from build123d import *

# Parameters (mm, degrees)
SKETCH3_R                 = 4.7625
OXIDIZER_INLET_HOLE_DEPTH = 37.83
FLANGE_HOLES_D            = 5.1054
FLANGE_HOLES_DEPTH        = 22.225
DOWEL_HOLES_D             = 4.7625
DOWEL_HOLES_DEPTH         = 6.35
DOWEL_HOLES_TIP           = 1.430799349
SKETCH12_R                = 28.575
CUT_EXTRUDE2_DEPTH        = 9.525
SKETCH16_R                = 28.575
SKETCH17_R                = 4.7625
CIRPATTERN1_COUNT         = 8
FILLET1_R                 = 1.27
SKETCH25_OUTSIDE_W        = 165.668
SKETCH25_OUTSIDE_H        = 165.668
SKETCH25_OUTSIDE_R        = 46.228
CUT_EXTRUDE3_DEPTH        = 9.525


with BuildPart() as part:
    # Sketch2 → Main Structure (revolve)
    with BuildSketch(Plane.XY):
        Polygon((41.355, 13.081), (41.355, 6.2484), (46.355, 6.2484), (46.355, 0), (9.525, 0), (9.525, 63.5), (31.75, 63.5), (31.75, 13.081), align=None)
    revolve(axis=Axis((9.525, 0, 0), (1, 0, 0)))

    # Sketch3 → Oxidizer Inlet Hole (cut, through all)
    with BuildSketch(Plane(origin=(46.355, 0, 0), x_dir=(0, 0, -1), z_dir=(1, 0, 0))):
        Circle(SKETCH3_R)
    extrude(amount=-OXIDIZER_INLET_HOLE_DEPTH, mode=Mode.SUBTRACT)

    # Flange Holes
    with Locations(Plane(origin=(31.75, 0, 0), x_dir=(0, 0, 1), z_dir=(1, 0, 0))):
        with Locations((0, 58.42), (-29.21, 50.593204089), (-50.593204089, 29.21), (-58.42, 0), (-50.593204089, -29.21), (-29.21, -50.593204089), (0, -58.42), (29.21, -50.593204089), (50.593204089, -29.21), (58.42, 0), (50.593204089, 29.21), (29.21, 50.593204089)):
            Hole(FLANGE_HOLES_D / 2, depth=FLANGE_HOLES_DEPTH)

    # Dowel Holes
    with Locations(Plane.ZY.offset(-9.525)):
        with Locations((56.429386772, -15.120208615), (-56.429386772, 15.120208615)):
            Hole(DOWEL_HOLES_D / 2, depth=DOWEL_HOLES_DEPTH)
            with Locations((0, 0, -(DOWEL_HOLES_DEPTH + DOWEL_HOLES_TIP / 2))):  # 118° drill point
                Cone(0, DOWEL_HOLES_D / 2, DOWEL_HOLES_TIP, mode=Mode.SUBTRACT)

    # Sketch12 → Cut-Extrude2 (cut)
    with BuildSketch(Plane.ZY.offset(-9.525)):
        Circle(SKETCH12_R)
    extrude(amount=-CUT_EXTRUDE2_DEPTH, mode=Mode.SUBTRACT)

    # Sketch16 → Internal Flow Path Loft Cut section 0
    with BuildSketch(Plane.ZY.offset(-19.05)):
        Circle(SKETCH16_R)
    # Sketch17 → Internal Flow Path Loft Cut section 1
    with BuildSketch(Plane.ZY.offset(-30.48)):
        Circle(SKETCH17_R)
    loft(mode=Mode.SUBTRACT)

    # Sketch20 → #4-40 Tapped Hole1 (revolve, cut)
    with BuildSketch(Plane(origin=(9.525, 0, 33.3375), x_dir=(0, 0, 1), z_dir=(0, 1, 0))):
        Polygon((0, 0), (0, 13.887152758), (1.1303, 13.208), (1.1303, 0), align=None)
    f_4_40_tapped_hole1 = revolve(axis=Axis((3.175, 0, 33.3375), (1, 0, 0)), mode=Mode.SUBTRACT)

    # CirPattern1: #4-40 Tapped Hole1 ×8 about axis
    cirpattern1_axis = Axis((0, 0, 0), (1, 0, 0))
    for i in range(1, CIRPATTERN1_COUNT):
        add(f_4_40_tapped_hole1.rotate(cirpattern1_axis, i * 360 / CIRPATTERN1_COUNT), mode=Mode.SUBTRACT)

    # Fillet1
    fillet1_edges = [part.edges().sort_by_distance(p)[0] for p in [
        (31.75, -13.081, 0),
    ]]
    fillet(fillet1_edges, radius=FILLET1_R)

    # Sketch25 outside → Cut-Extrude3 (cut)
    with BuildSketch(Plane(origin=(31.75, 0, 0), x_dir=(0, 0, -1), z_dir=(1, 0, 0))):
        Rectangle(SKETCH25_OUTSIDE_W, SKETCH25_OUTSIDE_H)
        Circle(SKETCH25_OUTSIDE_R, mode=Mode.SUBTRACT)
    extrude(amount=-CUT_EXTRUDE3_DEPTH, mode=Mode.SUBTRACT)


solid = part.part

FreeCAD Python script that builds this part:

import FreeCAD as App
import Part
import Sketcher
from FreeCAD import Vector
Q = App.Units.Quantity


def edges_at(feature, points):
    """Names of the edges that pass closest to the given points."""
    edges = feature.Shape.Edges
    near = lambda p: min(range(len(edges)), key=lambda i: edges[i].distToShape(Part.Vertex(*p))[0])
    return sorted({f"Edge{near(p) + 1}" for p in points})

doc = App.newDocument("Part")
params = doc.addObject("Spreadsheet::Sheet", "Params")
for row, (alias, value) in enumerate([
    ("sketch1_height", "2.5 in"),
    ("sketch1_width", "1.45 in"),
    ("sketch1_width2", "0.875 in"),
    ("sketch1_height2", "0.269 in"),
    ("sketch1_height3", "1.985 in"),
    ("revolution_angle", "360 deg"),
    ("sketch2_diameter", "0.375 in"),
    ("sketch3_diameter", "0.201 in"),
    ("hole_diameter", "0.201 in"),
    ("hole_depth", "0.875 in"),
    ("sketch4_diameter", "0.1875 in"),
    ("hole2_diameter", "0.1875 in"),
    ("hole2_depth", "0.25 in"),
    ("sketch5_diameter", "2.25 in"),
    ("pocket2_length", "0.375 in"),
    ("sketch6_diameter", "2.25 in"),
    ("sketch7_diameter", "0.375 in"),
    ("sketch8_width", "0.52 in"),
    ("groove_angle", "360 deg"),
    ("fillet_radius", "0.05 in"),
    ("sketch9_diameter", "3.64 in"),
    ("pocket3_length", "0.375 in"),
], start=1):
    params.set(f"A{row}", alias)
    params.set(f"B{row}", "=" + value)
    params.setAlias(f"B{row}", alias)

body = doc.addObject("PartDesign::Body", "Body")

# Sketch on XY plane
sketch1 = doc.addObject("Sketcher::SketchObject", "Sketch")
body.addObject(sketch1)
sketch1.AttachmentSupport = (doc.XY_Plane, [""])
sketch1.MapMode = "FlatFace"
sketch1.addGeometry([
    Part.LineSegment(Vector(41, 6, 0), Vector(41, 13, 0)),  # 0
    Part.LineSegment(Vector(41, 13, 0), Vector(32, 13, 0)),  # 1
    Part.LineSegment(Vector(32, 13, 0), Vector(32, 64, 0)),  # 2
    Part.LineSegment(Vector(32, 64, 0), Vector(10, 64, 0)),  # 3
    Part.LineSegment(Vector(10, 64, 0), Vector(10, 0, 0)),  # 4
    Part.LineSegment(Vector(10, 0, 0), Vector(46, 0, 0)),  # 5
    Part.LineSegment(Vector(46, 0, 0), Vector(46, 6, 0)),  # 6
    Part.LineSegment(Vector(46, 6, 0), Vector(41, 6, 0)),  # 7
], False)
sketch1.addConstraint([
    Sketcher.Constraint("Coincident", 0, 2, 1, 1),
    Sketcher.Constraint("Coincident", 1, 2, 2, 1),
    Sketcher.Constraint("Coincident", 2, 2, 3, 1),
    Sketcher.Constraint("Coincident", 3, 2, 4, 1),
    Sketcher.Constraint("Coincident", 4, 2, 5, 1),
    Sketcher.Constraint("Coincident", 5, 2, 6, 1),
    Sketcher.Constraint("Coincident", 6, 2, 7, 1),
    Sketcher.Constraint("Coincident", 7, 2, 0, 1),
    Sketcher.Constraint("Vertical", 0),
    Sketcher.Constraint("Horizontal", 1),
    Sketcher.Constraint("Vertical", 2),
    Sketcher.Constraint("Horizontal", 3),
    Sketcher.Constraint("Vertical", 4),
    Sketcher.Constraint("Horizontal", 5),
    Sketcher.Constraint("Vertical", 6),
    Sketcher.Constraint("Horizontal", 7),
    Sketcher.Constraint("PointOnObject", 4, 2, -1),
    Sketcher.Constraint("DistanceY", 4, 2, 4, 1, Q("2.5 in")),
    Sketcher.Constraint("DistanceX", 5, 1, 5, 2, Q("1.45 in")),
    Sketcher.Constraint("DistanceX", 3, 2, 3, 1, Q("0.875 in")),
    Sketcher.Constraint("DistanceY", 0, 1, 0, 2, Q("0.269 in")),
    Sketcher.Constraint("DistanceY", 2, 1, 2, 2, Q("1.985 in")),
    Sketcher.Constraint("DistanceX", -1, 1, 1, 2, Q("1.25 in")),
    Sketcher.Constraint("DistanceX", 1, 2, 1, 1, 9.605),
])
sketch1.setExpression("Constraints[17]", "Params.sketch1_height")
sketch1.setExpression("Constraints[18]", "Params.sketch1_width")
sketch1.setExpression("Constraints[19]", "Params.sketch1_width2")
sketch1.setExpression("Constraints[20]", "Params.sketch1_height2")
sketch1.setExpression("Constraints[21]", "Params.sketch1_height3")
revolution = doc.addObject("PartDesign::Revolution", "Revolution")
body.addObject(revolution)
revolution.Profile = sketch1
revolution.ReferenceAxis = (sketch1, ["H_Axis"])
revolution.setExpression("Angle", "Params.revolution_angle")

# Sketch on YZ plane
sketch2 = doc.addObject("Sketcher::SketchObject", "Sketch001")
body.addObject(sketch2)
sketch2.AttachmentSupport = (doc.YZ_Plane, [""])
sketch2.MapMode = "FlatFace"
sketch2.AttachmentOffset = App.Placement(Vector(0, 0, 1.825 * 25.4), App.Rotation())
sketch2.addGeometry(Part.Circle(Vector(0, 0, 0), Vector(0, 0, 1), 4.8), False)
sketch2.addConstraint([
    Sketcher.Constraint("Coincident", 0, 3, -1, 1),
    Sketcher.Constraint("Diameter", 0, Q("0.375 in")),
])
sketch2.setExpression("Constraints[1]", "Params.sketch2_diameter")
pocket1 = doc.addObject("PartDesign::Pocket", "Pocket")
body.addObject(pocket1)
pocket1.Profile = sketch2
pocket1.Type = "ThroughAll"

# Sketch on YZ plane
sketch3 = doc.addObject("Sketcher::SketchObject", "Sketch002")
body.addObject(sketch3)
sketch3.AttachmentSupport = (doc.YZ_Plane, [""])
sketch3.MapMode = "FlatFace"
sketch3.AttachmentOffset = App.Placement(Vector(0, 0, 1.25 * 25.4), App.Rotation())
sketch3.addGeometry([
    Part.Circle(Vector(-58.4, 0, 0), Vector(0, 0, 1), 2.6),  # 0
    Part.Circle(Vector(-50.6, -29.2, 0), Vector(0, 0, 1), 2.6),  # 1
    Part.Circle(Vector(-29.2, -50.6, 0), Vector(0, 0, 1), 2.6),  # 2
    Part.Circle(Vector(0, -58.4, 0), Vector(0, 0, 1), 2.6),  # 3
    Part.Circle(Vector(29.2, -50.6, 0), Vector(0, 0, 1), 2.6),  # 4
    Part.Circle(Vector(50.6, -29.2, 0), Vector(0, 0, 1), 2.6),  # 5
    Part.Circle(Vector(58.4, 0, 0), Vector(0, 0, 1), 2.6),  # 6
    Part.Circle(Vector(50.6, 29.2, 0), Vector(0, 0, 1), 2.6),  # 7
    Part.Circle(Vector(29.2, 50.6, 0), Vector(0, 0, 1), 2.6),  # 8
    Part.Circle(Vector(0, 58.4, 0), Vector(0, 0, 1), 2.6),  # 9
    Part.Circle(Vector(-29.2, 50.6, 0), Vector(0, 0, 1), 2.6),  # 10
    Part.Circle(Vector(-50.6, 29.2, 0), Vector(0, 0, 1), 2.6),  # 11
], False)
sketch3.addConstraint([
    Sketcher.Constraint("Equal", 0, 1),
    Sketcher.Constraint("Equal", 1, 2),
    Sketcher.Constraint("Equal", 2, 3),
    Sketcher.Constraint("Equal", 3, 4),
    Sketcher.Constraint("Equal", 4, 5),
    Sketcher.Constraint("Equal", 5, 6),
    Sketcher.Constraint("Equal", 6, 7),
    Sketcher.Constraint("Equal", 7, 8),
    Sketcher.Constraint("Equal", 8, 9),
    Sketcher.Constraint("Equal", 9, 10),
    Sketcher.Constraint("Equal", 10, 11),
    Sketcher.Constraint("Symmetric", 0, 3, 6, 3, -1, 1),
    Sketcher.Constraint("Symmetric", 1, 3, 7, 3, -1, 1),
    Sketcher.Constraint("Symmetric", 2, 3, 8, 3, -1, 1),
    Sketcher.Constraint("Symmetric", 3, 3, 9, 3, -1, 1),
    Sketcher.Constraint("Symmetric", 4, 3, 10, 3, -1, 1),
    Sketcher.Constraint("Symmetric", 5, 3, 11, 3, -1, 1),
    Sketcher.Constraint("Symmetric", 2, 3, 4, 3, -2),
    Sketcher.Constraint("Symmetric", 1, 3, 5, 3, -2),
    Sketcher.Constraint("PointOnObject", 0, 3, -1),
    Sketcher.Constraint("PointOnObject", 3, 3, -2),
    Sketcher.Constraint("Diameter", 0, Q("0.201 in")),
    Sketcher.Constraint("DistanceX", 0, 3, -1, 1, Q("2.3 in")),
    Sketcher.Constraint("DistanceY", 3, 3, -1, 1, Q("2.3 in")),
    Sketcher.Constraint("DistanceX", 2, 3, 4, 3, Q("2.3 in")),
    Sketcher.Constraint("DistanceY", 5, 3, 7, 3, Q("2.3 in")),
    Sketcher.Constraint("DistanceX", 1, 3, 5, 3, 101.186408),
    Sketcher.Constraint("DistanceY", 4, 3, 8, 3, 101.186408),
])
sketch3.setExpression("Constraints[21]", "Params.sketch3_diameter")
doc.recompute()
hole = doc.addObject("PartDesign::Hole", "Hole")
body.addObject(hole)
hole.Profile = sketch3
hole.ThreadType = "None"
hole.setExpression("Diameter", "Params.hole_diameter")
hole.DepthType = "Dimension"
hole.setExpression("Depth", "Params.hole_depth")
hole.DrillPoint = "Flat"

# Sketch on YZ plane
sketch4 = doc.addObject("Sketcher::SketchObject", "Sketch003")
body.addObject(sketch4)
sketch4.AttachmentSupport = (doc.YZ_Plane, [""])
sketch4.MapMode = "FlatFace"
sketch4.AttachmentOffset = App.Placement(Vector(0, 0, 0.375 * 25.4), App.Rotation())
sketch4.addGeometry([
    Part.Circle(Vector(-15.1, 56.4, 0), Vector(0, 0, 1), 2.4),
    Part.Circle(Vector(15.1, -56.4, 0), Vector(0, 0, 1), 2.4),
], False)
sketch4.addConstraint([
    Sketcher.Constraint("Equal", 0, 1),
    Sketcher.Constraint("Symmetric", 0, 3, 1, 3, -1, 1),
    Sketcher.Constraint("Diameter", 0, Q("0.1875 in")),
    Sketcher.Constraint("DistanceX", 0, 3, -1, 1, 15.120209),
    Sketcher.Constraint("DistanceY", -1, 1, 0, 3, 56.429387),
])
sketch4.setExpression("Constraints[2]", "Params.sketch4_diameter")
doc.recompute()
hole2 = doc.addObject("PartDesign::Hole", "Hole001")
body.addObject(hole2)
hole2.Profile = sketch4
hole2.ThreadType = "None"
hole2.setExpression("Diameter", "Params.hole2_diameter")
hole2.DepthType = "Dimension"
hole2.setExpression("Depth", "Params.hole2_depth")
hole2.DrillPoint = "Angled"
hole2.DrillPointAngle = 118
hole2.Reversed = True

# Sketch on YZ plane
sketch5 = doc.addObject("Sketcher::SketchObject", "Sketch004")
body.addObject(sketch5)
sketch5.AttachmentSupport = (doc.YZ_Plane, [""])
sketch5.MapMode = "FlatFace"
sketch5.AttachmentOffset = App.Placement(Vector(0, 0, 0.375 * 25.4), App.Rotation())
sketch5.addGeometry(Part.Circle(Vector(0, 0, 0), Vector(0, 0, 1), 29), False)
sketch5.addConstraint([
    Sketcher.Constraint("Coincident", 0, 3, -1, 1),
    Sketcher.Constraint("Diameter", 0, Q("2.25 in")),
])
sketch5.setExpression("Constraints[1]", "Params.sketch5_diameter")
pocket2 = doc.addObject("PartDesign::Pocket", "Pocket001")
body.addObject(pocket2)
pocket2.Profile = sketch5
pocket2.setExpression("Length", "Params.pocket2_length")
pocket2.Reversed = True

# Sketch on YZ plane
sketch6 = doc.addObject("Sketcher::SketchObject", "Sketch005")
body.addObject(sketch6)
sketch6.AttachmentSupport = (doc.YZ_Plane, [""])
sketch6.MapMode = "FlatFace"
sketch6.AttachmentOffset = App.Placement(Vector(0, 0, 0.75 * 25.4), App.Rotation())
sketch6.addGeometry(Part.Circle(Vector(0, 0, 0), Vector(0, 0, 1), 29), False)
sketch6.addConstraint([
    Sketcher.Constraint("Coincident", 0, 3, -1, 1),
    Sketcher.Constraint("Diameter", 0, Q("2.25 in")),
])
sketch6.setExpression("Constraints[1]", "Params.sketch6_diameter")

# Sketch on YZ plane
sketch7 = doc.addObject("Sketcher::SketchObject", "Sketch006")
body.addObject(sketch7)
sketch7.AttachmentSupport = (doc.YZ_Plane, [""])
sketch7.MapMode = "FlatFace"
sketch7.AttachmentOffset = App.Placement(Vector(0, 0, 1.2 * 25.4), App.Rotation())
sketch7.addGeometry(Part.Circle(Vector(0, 0, 0), Vector(0, 0, 1), 4.8), False)
sketch7.addConstraint([
    Sketcher.Constraint("Coincident", 0, 3, -1, 1),
    Sketcher.Constraint("Diameter", 0, Q("0.375 in")),
])
sketch7.setExpression("Constraints[1]", "Params.sketch7_diameter")

subtractiveloft = doc.addObject("PartDesign::SubtractiveLoft", "SubtractiveLoft")
body.addObject(subtractiveloft)
subtractiveloft.Profile = sketch6
subtractiveloft.Sections = [sketch7]

# Sketch on XZ plane
sketch8 = doc.addObject("Sketcher::SketchObject", "Sketch007")
body.addObject(sketch8)
sketch8.AttachmentSupport = (doc.XZ_Plane, [""])
sketch8.MapMode = "FlatFace"
sketch8.addGeometry([
    Part.LineSegment(Vector(23.4, 33.3, 0), Vector(9.5, 33.3, 0)),
    Part.LineSegment(Vector(9.5, 33.3, 0), Vector(9.5, 34.5, 0)),
    Part.LineSegment(Vector(9.5, 34.5, 0), Vector(22.7, 34.5, 0)),
    Part.LineSegment(Vector(22.7, 34.5, 0), Vector(23.4, 33.3, 0)),
], False)
sketch8.addGeometry(Part.LineSegment(Vector(9.5, 33.3, 0), Vector(23.4, 33.3, 0)), True)  # axis
sketch8.addConstraint([
    Sketcher.Constraint("Coincident", 0, 2, 1, 1),
    Sketcher.Constraint("Coincident", 1, 2, 2, 1),
    Sketcher.Constraint("Coincident", 2, 2, 3, 1),
    Sketcher.Constraint("Coincident", 3, 2, 0, 1),
    Sketcher.Constraint("Horizontal", 0),
    Sketcher.Constraint("Vertical", 1),
    Sketcher.Constraint("Horizontal", 2),
    Sketcher.Constraint("Horizontal", 4),
    Sketcher.Constraint("Coincident", 4, 1, 0, 2),
    Sketcher.Constraint("Equal", 0, 4),
    Sketcher.Constraint("Angle", 3, Q("-59 deg")),
    Sketcher.Constraint("DistanceX", 2, 1, 2, 2, Q("0.52 in")),
    Sketcher.Constraint("DistanceY", 1, 1, 1, 2, Q("0.0445 in")),
    Sketcher.Constraint("DistanceX", -1, 1, 0, 2, Q("0.375 in")),
    Sketcher.Constraint("DistanceY", -1, 1, 0, 2, Q("1.3125 in")),
])
sketch8.setExpression("Constraints[11]", "Params.sketch8_width")
groove = doc.addObject("PartDesign::Groove", "Groove")
body.addObject(groove)
groove.Profile = sketch8
groove.ReferenceAxis = (sketch8, ["Axis0"])
groove.setExpression("Angle", "Params.groove_angle")
doc.recompute()

polarpattern = doc.addObject("PartDesign::PolarPattern", "PolarPattern")
body.addObject(polarpattern)
polarpattern.Originals = [groove]
polarpattern.Axis = (doc.X_Axis, [""])
polarpattern.Angle = 360
polarpattern.Occurrences = 8
body.Tip = polarpattern
doc.recompute()

fillet = doc.addObject("PartDesign::Fillet", "Fillet")
body.addObject(fillet)
fillet.Base = (polarpattern, edges_at(polarpattern, [(31.75, -13.081, 0)]))
fillet.setExpression("Radius", "Params.fillet_radius")

# Sketch on YZ plane
sketch9 = doc.addObject("Sketcher::SketchObject", "Sketch008")
body.addObject(sketch9)
sketch9.AttachmentSupport = (doc.YZ_Plane, [""])
sketch9.MapMode = "FlatFace"
sketch9.AttachmentOffset = App.Placement(Vector(0, 0, 1.25 * 25.4), App.Rotation())
sketch9.addGeometry([
    Part.LineSegment(Vector(83, 83, 0), Vector(-83, 83, 0)),  # 0
    Part.LineSegment(Vector(-83, 83, 0), Vector(-83, -83, 0)),  # 1
    Part.LineSegment(Vector(-83, -83, 0), Vector(83, -83, 0)),  # 2
    Part.LineSegment(Vector(83, -83, 0), Vector(83, 83, 0)),  # 3
    Part.Circle(Vector(0, 0, 0), Vector(0, 0, 1), 46),  # 4
], False)
sketch9.addConstraint([
    Sketcher.Constraint("Coincident", 0, 2, 1, 1),
    Sketcher.Constraint("Coincident", 1, 2, 2, 1),
    Sketcher.Constraint("Coincident", 2, 2, 3, 1),
    Sketcher.Constraint("Coincident", 3, 2, 0, 1),
    Sketcher.Constraint("Horizontal", 0),
    Sketcher.Constraint("Vertical", 1),
    Sketcher.Constraint("Horizontal", 2),
    Sketcher.Constraint("Vertical", 3),
    Sketcher.Constraint("Coincident", 4, 3, -1, 1),
    Sketcher.Constraint("Symmetric", 0, 2, 2, 2, -1, 1),
    Sketcher.Constraint("Equal", 2, 1),
    Sketcher.Constraint("Diameter", 4, Q("3.64 in")),
    Sketcher.Constraint("DistanceX", 0, 2, 0, 1, 165.668),
])
sketch9.setExpression("Constraints[11]", "Params.sketch9_diameter")
pocket3 = doc.addObject("PartDesign::Pocket", "Pocket002")
body.addObject(pocket3)
pocket3.Profile = sketch9
pocket3.setExpression("Length", "Params.pocket3_length")

doc.recompute()
